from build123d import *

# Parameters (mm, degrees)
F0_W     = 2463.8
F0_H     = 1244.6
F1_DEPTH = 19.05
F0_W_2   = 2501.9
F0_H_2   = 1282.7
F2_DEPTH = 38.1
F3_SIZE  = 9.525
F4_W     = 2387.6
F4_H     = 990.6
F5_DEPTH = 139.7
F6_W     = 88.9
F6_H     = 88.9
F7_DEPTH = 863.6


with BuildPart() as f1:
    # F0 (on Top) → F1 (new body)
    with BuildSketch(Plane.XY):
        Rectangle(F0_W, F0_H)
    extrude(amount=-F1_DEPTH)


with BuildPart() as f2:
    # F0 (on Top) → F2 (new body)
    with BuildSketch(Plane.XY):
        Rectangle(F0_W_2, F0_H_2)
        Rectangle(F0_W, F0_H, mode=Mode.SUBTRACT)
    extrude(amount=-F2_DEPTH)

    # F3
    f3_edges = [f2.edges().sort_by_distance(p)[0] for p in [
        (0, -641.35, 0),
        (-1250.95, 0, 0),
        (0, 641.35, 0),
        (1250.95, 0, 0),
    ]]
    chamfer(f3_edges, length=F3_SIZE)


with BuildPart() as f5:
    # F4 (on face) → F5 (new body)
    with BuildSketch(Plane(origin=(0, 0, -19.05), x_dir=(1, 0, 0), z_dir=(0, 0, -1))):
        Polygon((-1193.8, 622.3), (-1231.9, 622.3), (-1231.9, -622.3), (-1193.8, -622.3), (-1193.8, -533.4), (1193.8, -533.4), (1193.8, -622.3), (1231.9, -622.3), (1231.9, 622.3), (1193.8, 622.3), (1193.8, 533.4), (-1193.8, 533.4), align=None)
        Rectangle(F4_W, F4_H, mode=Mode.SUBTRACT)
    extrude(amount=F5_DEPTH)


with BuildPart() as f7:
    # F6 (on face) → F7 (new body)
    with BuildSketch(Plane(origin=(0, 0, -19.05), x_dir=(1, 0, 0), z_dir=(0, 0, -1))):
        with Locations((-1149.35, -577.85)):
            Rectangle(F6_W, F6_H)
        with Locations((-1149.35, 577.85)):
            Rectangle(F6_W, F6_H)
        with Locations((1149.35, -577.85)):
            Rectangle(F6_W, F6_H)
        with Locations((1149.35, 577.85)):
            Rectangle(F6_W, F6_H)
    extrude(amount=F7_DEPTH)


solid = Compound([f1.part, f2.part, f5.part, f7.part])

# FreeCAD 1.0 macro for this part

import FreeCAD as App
import Part
import Sketcher
Q = App.Units.Quantity


def edges_at(feature, points):
    """Names of the edges that pass closest to the given points."""
    edges = feature.Shape.Edges
    near = lambda p: min(range(len(edges)), key=lambda i: edges[i].distToShape(Part.Vertex(*p))[0])
    return sorted({f"Edge{near(p) + 1}" for p in points})


def add_polygon(sketch, points):
    """Adds a closed chain of lines whose ends are joined by coincident constraints."""
    first, n = sketch.GeometryCount, len(points)
    for a, b in zip(points, points[1:] + points[:1]):
        sketch.addGeometry(Part.LineSegment(App.Vector(*a, 0), App.Vector(*b, 0)), False)
    for i in range(n):
        sketch.addConstraint(Sketcher.Constraint("Coincident", first + i, 2, first + (i + 1) % n, 1))

doc = App.newDocument("Part")
body = doc.addObject("PartDesign::Body", "Body")

sketch1 = body.newObject("Sketcher::SketchObject", "Sketch")
sketch1.AttachmentSupport = (doc.getObject("XY_Plane"), [""])
sketch1.MapMode = "FlatFace"
add_polygon(sketch1, [(-1231.9, 622.3), (-1231.9, -622.3), (1231.9, -622.3), (1231.9, 622.3)])
sketch1.addConstraint([
    Sketcher.Constraint("Vertical", 0),
    Sketcher.Constraint("Horizontal", 1),
    Sketcher.Constraint("Vertical", 2),
    Sketcher.Constraint("Horizontal", 3),
    Sketcher.Constraint("Symmetric", 0, 2, 2, 2, -1, 1),
    Sketcher.Constraint("DistanceX", 1, 1, 1, 2, Q("97 in")),
    Sketcher.Constraint("DistanceY", 0, 2, 0, 1, Q("49 in")),
])
pad1 = body.newObject("PartDesign::Pad", "Pad")
pad1.Profile = sketch1
pad1.Length = Q("0.75 in")
pad1.Reversed = True
body2 = doc.addObject("PartDesign::Body", "Body001")

sketch2 = body2.newObject("Sketcher::SketchObject", "Sketch001")
sketch2.AttachmentSupport = (doc.getObject("XY_Plane001"), [""])
sketch2.MapMode = "FlatFace"
add_polygon(sketch2, [(-1250.95, 641.35), (-1250.95, -641.35), (1250.95, -641.35), (1250.95, 641.35)])
add_polygon(sketch2, [(1231.9, -622.3), (-1231.9, -622.3), (-1231.9, 622.3), (1231.9, 622.3)])
sketch2.addConstraint([
    Sketcher.Constraint("Vertical", 0),
    Sketcher.Constraint("Horizontal", 1),
    Sketcher.Constraint("Vertical", 2),
    Sketcher.Constraint("Horizontal", 3),
    Sketcher.Constraint("Horizontal", 4),
    Sketcher.Constraint("Vertical", 5),
    Sketcher.Constraint("Horizontal", 6),
    Sketcher.Constraint("Vertical", 7),
    Sketcher.Constraint("Symmetric", 0, 2, 2, 2, -1, 1),
    Sketcher.Constraint("Symmetric", 4, 2, 6, 2, -1, 1),
    Sketcher.Constraint("DistanceX", 4, 2, 4, 1, Q("97 in")),
    Sketcher.Constraint("DistanceY", 5, 1, 5, 2, Q("49 in")),
    Sketcher.Constraint("DistanceX", 1, 1, 1, 2, Q("98.5 in")),
    Sketcher.Constraint("DistanceY", 0, 2, 0, 1, Q("50.5 in")),
])
pad2 = body2.newObject("PartDesign::Pad", "Pad001")
pad2.Profile = sketch2
pad2.Length = Q("1.5 in")
pad2.Reversed = True
doc.recompute()

chamfer = body2.newObject("PartDesign::Chamfer", "Chamfer")
chamfer.Base = (pad2, edges_at(pad2, [
    (0, -641.35, 0),
    (-1250.95, 0, 0),
    (0, 641.35, 0),
    (1250.95, 0, 0),
]))
chamfer.Size = Q("0.375 in")
body3 = doc.addObject("PartDesign::Body", "Body002")

sketch3 = body3.newObject("Sketcher::SketchObject", "Sketch002")
sketch3.AttachmentSupport = (doc.getObject("XY_Plane002"), [""])
sketch3.MapMode = "FlatFace"
sketch3.AttachmentOffset = App.Placement(App.Vector(0, 0, -0.75 * 25.4), App.Rotation())
add_polygon(sketch3, [(-1193.8, -622.3), (-1231.9, -622.3), (-1231.9, 622.3), (-1193.8, 622.3), (-1193.8, 533.4), (1193.8, 533.4), (1193.8, 622.3), (1231.9, 622.3), (1231.9, -622.3), (1193.8, -622.3), (1193.8, -533.4), (-1193.8, -533.4)])
add_polygon(sketch3, [(1193.8, 495.3), (-1193.8, 495.3), (-1193.8, -495.3), (1193.8, -495.3)])
sketch3.addConstraint([
    Sketcher.Constraint("Horizontal", 0),
    Sketcher.Constraint("Vertical", 1),
    Sketcher.Constraint("Horizontal", 2),
    Sketcher.Constraint("Vertical", 3),
    Sketcher.Constraint("Horizontal", 4),
    Sketcher.Constraint("Vertical", 5),
    Sketcher.Constraint("Horizontal", 6),
    Sketcher.Constraint("Vertical", 7),
    Sketcher.Constraint("Horizontal", 8),
    Sketcher.Constraint("Vertical", 9),
    Sketcher.Constraint("Horizontal", 10),
    Sketcher.Constraint("Vertical", 11),
    Sketcher.Constraint("Horizontal", 12),
    Sketcher.Constraint("Vertical", 13),
    Sketcher.Constraint("Horizontal", 14),
    Sketcher.Constraint("Vertical", 15),
    Sketcher.Constraint("Symmetric", 0, 2, 6, 2, -1, 1),
    Sketcher.Constraint("Symmetric", 2, 2, 8, 2, -1, 1),
    Sketcher.Constraint("Symmetric", 4, 2, 10, 2, -1, 1),
    Sketcher.Constraint("Symmetric", 12, 2, 14, 2, -1, 1),
    Sketcher.Constraint("Symmetric", 2, 2, 5, 2, -2),
    Sketcher.Constraint("Vertical", 11, 2, 12, 2),
    Sketcher.Constraint("DistanceX", 4, 1, 4, 2, Q("94 in")),
    Sketcher.Constraint("DistanceY", 1, 1, 1, 2, Q("49 in")),
    Sketcher.Constraint("DistanceY", 13, 2, 13, 1, Q("39 in")),
    Sketcher.Constraint("DistanceX", 0, 2, 0, 1, Q("1.5 in")),
    Sketcher.Constraint("DistanceY", 3, 2, 3, 1, Q("3.5 in")),
])
pad3 = body3.newObject("PartDesign::Pad", "Pad002")
pad3.Profile = sketch3
pad3.Length = Q("5.5 in")
pad3.Reversed = True
body4 = doc.addObject("PartDesign::Body", "Body003")
body4.AllowCompound = True

sketch4 = body4.newObject("Sketcher::SketchObject", "Sketch003")
sketch4.AttachmentSupport = (doc.getObject("XY_Plane003"), [""])
sketch4.MapMode = "FlatFace"
sketch4.AttachmentOffset = App.Placement(App.Vector(0, 0, -0.75 * 25.4), App.Rotation())
add_polygon(sketch4, [(-1193.8, 533.4), (-1193.8, 622.3), (-1104.9, 622.3), (-1104.9, 533.4)])
add_polygon(sketch4, [(-1193.8, -622.3), (-1193.8, -533.4), (-1104.9, -533.4), (-1104.9, -622.3)])
add_polygon(sketch4, [(1104.9, 533.4), (1104.9, 622.3), (1193.8, 622.3), (1193.8, 533.4)])
add_polygon(sketch4, [(1104.9, -622.3), (1104.9, -533.4), (1193.8, -533.4), (1193.8, -622.3)])
sketch4.addConstraint([
    Sketcher.Constraint("Vertical", 0),
    Sketcher.Constraint("Horizontal", 1),
    Sketcher.Constraint("Vertical", 2),
    Sketcher.Constraint("Horizontal", 3),
    Sketcher.Constraint("Vertical", 4),
    Sketcher.Constraint("Horizontal", 5),
    Sketcher.Constraint("Vertical", 6),
    Sketcher.Constraint("Horizontal", 7),
    Sketcher.Constraint("Vertical", 8),
    Sketcher.Constraint("Horizontal", 9),
    Sketcher.Constraint("Vertical", 10),
    Sketcher.Constraint("Horizontal", 11),
    Sketcher.Constraint("Vertical", 12),
    Sketcher.Constraint("Horizontal", 13),
    Sketcher.Constraint("Vertical", 14),
    Sketcher.Constraint("Horizontal", 15),
    Sketcher.Constraint("Symmetric", 6, 2, 8, 2, -1, 1),
    Sketcher.Constraint("Symmetric", 4, 2, 10, 2, -1, 1),
    Sketcher.Constraint("Symmetric", 2, 2, 12, 2, -1, 1),
    Sketcher.Constraint("Symmetric", 0, 2, 14, 2, -1, 1),
    Sketcher.Constraint("Symmetric", 1, 2, 8, 2, -2),
    Sketcher.Constraint("Symmetric", 3, 2, 10, 2, -2),
    Sketcher.Constraint("Equal", 15, 0),
    Sketcher.Constraint("DistanceX", 1, 1, 1, 2, Q("3.5 in")),
    Sketcher.Constraint("DistanceX", 0, 2, -1, 1, Q("47 in")),
    Sketcher.Constraint("DistanceY", -1, 1, 2, 2, Q("21 in")),
])
pad4 = body4.newObject("PartDesign::Pad", "Pad003")
pad4.Profile = sketch4
pad4.Length = Q("34 in")
pad4.Reversed = True

doc.recompute()
